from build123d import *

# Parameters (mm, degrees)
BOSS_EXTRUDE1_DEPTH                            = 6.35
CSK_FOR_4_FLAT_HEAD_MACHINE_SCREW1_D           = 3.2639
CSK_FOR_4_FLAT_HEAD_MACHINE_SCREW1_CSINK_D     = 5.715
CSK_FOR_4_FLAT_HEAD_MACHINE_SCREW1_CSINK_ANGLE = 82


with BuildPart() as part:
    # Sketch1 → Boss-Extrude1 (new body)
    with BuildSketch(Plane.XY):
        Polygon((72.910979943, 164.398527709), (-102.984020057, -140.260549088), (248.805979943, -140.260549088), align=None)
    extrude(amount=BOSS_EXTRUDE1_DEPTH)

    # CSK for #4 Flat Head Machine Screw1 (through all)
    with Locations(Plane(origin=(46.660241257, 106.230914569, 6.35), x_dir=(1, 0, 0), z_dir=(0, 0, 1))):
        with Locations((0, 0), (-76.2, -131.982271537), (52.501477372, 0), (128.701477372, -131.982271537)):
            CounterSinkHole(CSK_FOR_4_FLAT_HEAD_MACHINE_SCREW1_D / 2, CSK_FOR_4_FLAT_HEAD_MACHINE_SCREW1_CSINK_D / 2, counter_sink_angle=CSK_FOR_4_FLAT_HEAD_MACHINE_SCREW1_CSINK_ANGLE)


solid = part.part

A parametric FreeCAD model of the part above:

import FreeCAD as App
import Part
import Sketcher

V = App.Vector
Q = App.Units.Quantity


def add_polygon(sketch, points):
    """Adds a closed chain of lines whose ends are joined by coincident constraints."""
    first, n = sketch.GeometryCount, len(points)
    for a, b in zip(points, points[1:] + points[:1]):
        sketch.addGeometry(Part.LineSegment(App.Vector(*a, 0), App.Vector(*b, 0)), False)
    for i in range(n):
        sketch.addConstraint(Sketcher.Constraint("Coincident", first + i, 2, first + (i + 1) % n, 1))

doc = App.newDocument("Part")
body = doc.addObject("PartDesign::Body", "Body")

# Sketch on XY plane
sketch1 = body.newObject("Sketcher::SketchObject", "Sketch")
sketch1.AttachmentSupport = (doc.getObject("XY_Plane"), [""])
sketch1.MapMode = "FlatFace"
add_polygon(sketch1, [(73, 164), (-103, -140), (249, -140)])  # lines 0-2
sketch1.addConstraint([
    Sketcher.Constraint("Horizontal", 1),
    Sketcher.Constraint("Equal", 0, 2),
    Sketcher.Constraint("Angle", 0, Q("-120 deg")),
    Sketcher.Constraint("DistanceX", 1, 1, 1, 2, Q("13.85 in")),
    Sketcher.Constraint("DistanceX", 0, 2, -1, 1, 102.98402),
    Sketcher.Constraint("DistanceY", 0, 2, -1, 1, 140.260549),
])
pad1 = body.newObject("PartDesign::Pad", "Pad")
pad1.Profile = sketch1
pad1.Length = Q("0.25 in")

# Sketch on XY plane
sketch2 = body.newObject("Sketcher::SketchObject", "Sketch001")
sketch2.AttachmentSupport = (doc.getObject("XY_Plane"), [""])
sketch2.MapMode = "FlatFace"
sketch2.AttachmentOffset = App.Placement(V(0, 0, 0.25 * 25.4), App.Rotation())
sketch2.addGeometry([
    Part.Circle(V(46.7, 106.2, 0), V(0, 0, 1), 1.6),
    Part.Circle(V(-29.5, -25.8, 0), V(0, 0, 1), 1.6),
    Part.Circle(V(99.2, 106.2, 0), V(0, 0, 1), 1.6),
    Part.Circle(V(175.4, -25.8, 0), V(0, 0, 1), 1.6),
], False)
sketch2.addConstraint([
    Sketcher.Constraint("Equal", 0, 1),
    Sketcher.Constraint("Equal", 1, 2),
    Sketcher.Constraint("Equal", 2, 3),
    Sketcher.Constraint("Horizontal", 0, 3, 2, 3),
    Sketcher.Constraint("Horizontal", 1, 3, 3, 3),
    Sketcher.Constraint("DistanceX", 1, 3, 0, 3, Q("3 in")),
    Sketcher.Constraint("DistanceX", 2, 3, 3, 3, Q("3 in")),
    Sketcher.Constraint("Diameter", 0, Q("0.1285 in")),
    Sketcher.Constraint("DistanceX", -1, 1, 0, 3, 46.660241),
    Sketcher.Constraint("DistanceX", -1, 1, 2, 3, 99.161719),
    Sketcher.Constraint("DistanceY", 1, 3, 0, 3, 131.982272),
    Sketcher.Constraint("DistanceY", -1, 1, 0, 3, 106.230915),
])
doc.recompute()
hole = body.newObject("PartDesign::Hole", "Hole")
hole.Profile = sketch2
hole.ThreadType = "None"
hole.Diameter = Q("0.1285 in")
hole.DepthType = "ThroughAll"
hole.HoleCutType = "Countersink"
hole.HoleCutDiameter = Q("0.225 in")
hole.HoleCutCountersinkAngle = 82

doc.recompute()
